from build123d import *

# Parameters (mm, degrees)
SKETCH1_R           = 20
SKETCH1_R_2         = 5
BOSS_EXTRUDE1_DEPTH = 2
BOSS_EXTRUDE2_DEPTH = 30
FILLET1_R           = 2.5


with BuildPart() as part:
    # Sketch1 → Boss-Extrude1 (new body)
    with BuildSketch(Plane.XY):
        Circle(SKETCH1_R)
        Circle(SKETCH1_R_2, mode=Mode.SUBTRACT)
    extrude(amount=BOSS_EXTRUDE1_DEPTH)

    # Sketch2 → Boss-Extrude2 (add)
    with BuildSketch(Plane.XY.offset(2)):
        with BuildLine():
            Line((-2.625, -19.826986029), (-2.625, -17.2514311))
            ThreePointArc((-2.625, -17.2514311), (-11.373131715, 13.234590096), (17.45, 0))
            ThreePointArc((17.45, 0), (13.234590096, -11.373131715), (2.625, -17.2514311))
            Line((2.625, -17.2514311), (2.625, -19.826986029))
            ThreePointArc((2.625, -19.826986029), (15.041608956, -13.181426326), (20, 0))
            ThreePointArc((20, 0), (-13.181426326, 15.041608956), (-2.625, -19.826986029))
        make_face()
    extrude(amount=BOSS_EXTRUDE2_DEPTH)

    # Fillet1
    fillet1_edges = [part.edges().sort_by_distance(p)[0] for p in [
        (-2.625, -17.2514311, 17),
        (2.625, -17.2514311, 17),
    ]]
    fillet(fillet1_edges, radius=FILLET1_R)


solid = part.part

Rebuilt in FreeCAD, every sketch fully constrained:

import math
import FreeCAD as App
import Part
import Sketcher


def edges_at(feature, points):
    """Names of the edges that pass closest to the given points."""
    edges = feature.Shape.Edges
    near = lambda p: min(range(len(edges)), key=lambda i: edges[i].distToShape(Part.Vertex(*p))[0])
    return sorted({f"Edge{near(p) + 1}" for p in points})

doc = App.newDocument("Part")
body = doc.addObject("PartDesign::Body", "Body")

sketch1 = doc.addObject("Sketcher::SketchObject", "Sketch")
body.addObject(sketch1)
sketch1.AttachmentSupport = (doc.XY_Plane, [""])
sketch1.MapMode = "FlatFace"
sketch1.addGeometry([
    Part.Circle(App.Vector(0, 0, 0), App.Vector(0, 0, 1), 20),
    Part.Circle(App.Vector(0, 0, 0), App.Vector(0, 0, 1), 5),
], False)
sketch1.addConstraint([
    Sketcher.Constraint("Coincident", 0, 3, -1, 1),
    Sketcher.Constraint("Coincident", 1, 3, -1, 1),
    Sketcher.Constraint("Diameter", 0, 40.0),
    Sketcher.Constraint("Diameter", 1, 10.0),
])
pad1 = doc.addObject("PartDesign::Pad", "Pad")
body.addObject(pad1)
pad1.Profile = sketch1
pad1.Length = 2

sketch2 = doc.addObject("Sketcher::SketchObject", "Sketch001")
body.addObject(sketch2)
sketch2.AttachmentSupport = (doc.XY_Plane, [""])
sketch2.MapMode = "FlatFace"
sketch2.AttachmentOffset = App.Placement(App.Vector(0, 0, 2), App.Rotation())
sketch2.addGeometry([
    Part.LineSegment(App.Vector(-2.6, -19.8, 0), App.Vector(-2.6, -17.3, 0)),
    Part.ArcOfCircle(Part.Circle(App.Vector(0, 0, 0), App.Vector(0, 0, 1), 17.4), math.radians(0), math.radians(261)),
    Part.ArcOfCircle(Part.Circle(App.Vector(0, 0, 0), App.Vector(0, 0, 1), 17.4), math.radians(-81), math.radians(0)),
    Part.LineSegment(App.Vector(2.6, -17.3, 0), App.Vector(2.6, -19.8, 0)),
    Part.ArcOfCircle(Part.Circle(App.Vector(0, 0, 0), App.Vector(0, 0, 1), 20), math.radians(-82), math.radians(0)),
    Part.ArcOfCircle(Part.Circle(App.Vector(0, 0, 0), App.Vector(0, 0, 1), 20), math.radians(0), math.radians(262)),
], False)
sketch2.addConstraint([
    Sketcher.Constraint("Coincident", 0, 2, 1, 2),
    Sketcher.Constraint("Tangent", 1, 1, 2, 2),
    Sketcher.Constraint("Coincident", 2, 1, 3, 1),
    Sketcher.Constraint("Coincident", 3, 2, 4, 1),
    Sketcher.Constraint("Tangent", 4, 2, 5, 1),
    Sketcher.Constraint("Coincident", 5, 2, 0, 1),
    Sketcher.Constraint("Vertical", 0),
    Sketcher.Constraint("Vertical", 3),
    Sketcher.Constraint("Coincident", 1, 3, -1, 1),
    Sketcher.Constraint("Coincident", 4, 3, -1, 1),
    Sketcher.Constraint("Equal", 1, 2),
    Sketcher.Constraint("Equal", 4, 5),
    Sketcher.Constraint("PointOnObject", 1, 1, -1),
    Sketcher.Constraint("PointOnObject", 4, 2, -1),
    Sketcher.Constraint("Horizontal", 0, 2, 2, 1),
    Sketcher.Constraint("Radius", 4, 20.0),
    Sketcher.Constraint("Radius", 1, 17.45),
    Sketcher.Constraint("DistanceX", 0, 2, 2, 1, 5.25),
])
pad2 = doc.addObject("PartDesign::Pad", "Pad001")
body.addObject(pad2)
pad2.Profile = sketch2
pad2.Length = 30
doc.recompute()

fillet = doc.addObject("PartDesign::Fillet", "Fillet")
body.addObject(fillet)
fillet.Base = (pad2, edges_at(pad2, [(-2.625, -17.251, 17), (2.625, -17.251, 17)]))
fillet.Radius = 2.5

doc.recompute()
